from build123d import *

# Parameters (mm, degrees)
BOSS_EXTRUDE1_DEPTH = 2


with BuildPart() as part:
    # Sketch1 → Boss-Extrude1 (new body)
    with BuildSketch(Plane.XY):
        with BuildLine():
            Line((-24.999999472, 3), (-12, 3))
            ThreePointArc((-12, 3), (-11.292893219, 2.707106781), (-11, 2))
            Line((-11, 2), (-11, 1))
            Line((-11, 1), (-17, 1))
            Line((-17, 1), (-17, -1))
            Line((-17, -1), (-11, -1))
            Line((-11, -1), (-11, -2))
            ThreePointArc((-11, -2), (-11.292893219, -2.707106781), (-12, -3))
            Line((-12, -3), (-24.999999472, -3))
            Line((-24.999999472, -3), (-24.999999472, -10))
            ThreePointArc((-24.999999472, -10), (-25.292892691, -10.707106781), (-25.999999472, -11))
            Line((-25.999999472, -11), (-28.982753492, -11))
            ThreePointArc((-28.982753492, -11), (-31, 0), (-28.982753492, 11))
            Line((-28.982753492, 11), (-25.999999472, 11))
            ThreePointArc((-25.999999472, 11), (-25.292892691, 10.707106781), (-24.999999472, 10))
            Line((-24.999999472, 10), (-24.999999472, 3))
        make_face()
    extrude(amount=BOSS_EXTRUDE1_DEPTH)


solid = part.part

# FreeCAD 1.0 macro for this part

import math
import FreeCAD as App
import Part
import Sketcher

V = App.Vector

doc = App.newDocument("Part")
body = doc.addObject("PartDesign::Body", "Body")

sketch1 = doc.addObject("Sketcher::SketchObject", "Sketch")
body.addObject(sketch1)
sketch1.AttachmentSupport = (doc.XY_Plane, [""])
sketch1.MapMode = "FlatFace"
sketch1.addGeometry([
    Part.LineSegment(V(-12, 3, 0), V(-24.999999, 3, 0)),
    Part.LineSegment(V(-24.999999, 3, 0), V(-24.999999, 10, 0)),
    Part.ArcOfCircle(Part.Circle(V(-25.999999, 10, 0), V(0, 0, 1), 1), math.radians(0), math.radians(90)),
    Part.LineSegment(V(-25.999999, 11, 0), V(-28.982753, 11, 0)),
    Part.ArcOfCircle(Part.Circle(V(0, 0, 0), V(0, 0, 1), 31), math.radians(159.21644), math.radians(200.78356)),
    Part.LineSegment(V(-28.982753, -11, 0), V(-25.999999, -11, 0)),
    Part.ArcOfCircle(Part.Circle(V(-25.999999, -10, 0), V(0, 0, 1), 1), math.radians(-90), math.radians(0)),
    Part.LineSegment(V(-24.999999, -10, 0), V(-24.999999, -3, 0)),
    Part.LineSegment(V(-24.999999, -3, 0), V(-12, -3, 0)),
    Part.ArcOfCircle(Part.Circle(V(-12, -2, 0), V(0, 0, 1), 1), math.radians(-90), math.radians(0)),
    Part.LineSegment(V(-11, -2, 0), V(-11, -1, 0)),
    Part.LineSegment(V(-11, -1, 0), V(-17, -1, 0)),
    Part.LineSegment(V(-17, -1, 0), V(-17, 1, 0)),
    Part.LineSegment(V(-17, 1, 0), V(-11, 1, 0)),
    Part.LineSegment(V(-11, 1, 0), V(-11, 2, 0)),
    Part.ArcOfCircle(Part.Circle(V(-12, 2, 0), V(0, 0, 1), 1), math.radians(0), math.radians(90)),
], False)
sketch1.addConstraint([
    Sketcher.Constraint("Coincident", 0, 2, 1, 1),
    Sketcher.Constraint("Tangent", 1, 2, 2, 1),
    Sketcher.Constraint("Tangent", 2, 2, 3, 1),
    Sketcher.Constraint("Coincident", 3, 2, 4, 1),
    Sketcher.Constraint("Coincident", 4, 2, 5, 1),
    Sketcher.Constraint("Tangent", 5, 2, 6, 1),
    Sketcher.Constraint("Tangent", 6, 2, 7, 1),
    Sketcher.Constraint("Coincident", 7, 2, 8, 1),
    Sketcher.Constraint("Tangent", 8, 2, 9, 1),
    Sketcher.Constraint("Tangent", 9, 2, 10, 1),
    Sketcher.Constraint("Coincident", 10, 2, 11, 1),
    Sketcher.Constraint("Coincident", 11, 2, 12, 1),
    Sketcher.Constraint("Coincident", 12, 2, 13, 1),
    Sketcher.Constraint("Coincident", 13, 2, 14, 1),
    Sketcher.Constraint("Tangent", 14, 2, 15, 1),
    Sketcher.Constraint("Tangent", 15, 2, 0, 1),
    Sketcher.Constraint("Horizontal", 0),
    Sketcher.Constraint("Vertical", 1),
    Sketcher.Constraint("Horizontal", 3),
    Sketcher.Constraint("Horizontal", 5),
    Sketcher.Constraint("Vertical", 7),
    Sketcher.Constraint("Horizontal", 8),
    Sketcher.Constraint("Vertical", 10),
    Sketcher.Constraint("Horizontal", 11),
    Sketcher.Constraint("Vertical", 12),
    Sketcher.Constraint("Horizontal", 13),
    Sketcher.Constraint("Vertical", 14),
    Sketcher.Constraint("Coincident", 4, 3, -1, 1),
    Sketcher.Constraint("Equal", 2, 6),
    Sketcher.Constraint("Equal", 6, 9),
    Sketcher.Constraint("Equal", 9, 15),
    Sketcher.Constraint("Symmetric", 2, 3, 6, 3, -1),
    Sketcher.Constraint("Symmetric", 9, 3, 15, 3, -1),
    Sketcher.Constraint("Equal", 10, 14),
    Sketcher.Constraint("Radius", 2, 1.0),
    Sketcher.Constraint("Radius", 4, 31.0),
    Sketcher.Constraint("DistanceX", 0, 2, 0, 1, 12.999999),
    Sketcher.Constraint("DistanceX", 11, 2, 11, 1, 6.0),
    Sketcher.Constraint("DistanceY", 1, 1, 1, 2, 7.0),
    Sketcher.Constraint("DistanceY", 10, 1, 10, 2, 1.0),
    Sketcher.Constraint("DistanceY", 12, 1, 12, 2, 2.0),
    Sketcher.Constraint("DistanceX", 2, 3, -1, 1, 25.999999),
])
pad1 = doc.addObject("PartDesign::Pad", "Pad")
body.addObject(pad1)
pad1.Profile = sketch1
pad1.Length = 2

doc.recompute()
